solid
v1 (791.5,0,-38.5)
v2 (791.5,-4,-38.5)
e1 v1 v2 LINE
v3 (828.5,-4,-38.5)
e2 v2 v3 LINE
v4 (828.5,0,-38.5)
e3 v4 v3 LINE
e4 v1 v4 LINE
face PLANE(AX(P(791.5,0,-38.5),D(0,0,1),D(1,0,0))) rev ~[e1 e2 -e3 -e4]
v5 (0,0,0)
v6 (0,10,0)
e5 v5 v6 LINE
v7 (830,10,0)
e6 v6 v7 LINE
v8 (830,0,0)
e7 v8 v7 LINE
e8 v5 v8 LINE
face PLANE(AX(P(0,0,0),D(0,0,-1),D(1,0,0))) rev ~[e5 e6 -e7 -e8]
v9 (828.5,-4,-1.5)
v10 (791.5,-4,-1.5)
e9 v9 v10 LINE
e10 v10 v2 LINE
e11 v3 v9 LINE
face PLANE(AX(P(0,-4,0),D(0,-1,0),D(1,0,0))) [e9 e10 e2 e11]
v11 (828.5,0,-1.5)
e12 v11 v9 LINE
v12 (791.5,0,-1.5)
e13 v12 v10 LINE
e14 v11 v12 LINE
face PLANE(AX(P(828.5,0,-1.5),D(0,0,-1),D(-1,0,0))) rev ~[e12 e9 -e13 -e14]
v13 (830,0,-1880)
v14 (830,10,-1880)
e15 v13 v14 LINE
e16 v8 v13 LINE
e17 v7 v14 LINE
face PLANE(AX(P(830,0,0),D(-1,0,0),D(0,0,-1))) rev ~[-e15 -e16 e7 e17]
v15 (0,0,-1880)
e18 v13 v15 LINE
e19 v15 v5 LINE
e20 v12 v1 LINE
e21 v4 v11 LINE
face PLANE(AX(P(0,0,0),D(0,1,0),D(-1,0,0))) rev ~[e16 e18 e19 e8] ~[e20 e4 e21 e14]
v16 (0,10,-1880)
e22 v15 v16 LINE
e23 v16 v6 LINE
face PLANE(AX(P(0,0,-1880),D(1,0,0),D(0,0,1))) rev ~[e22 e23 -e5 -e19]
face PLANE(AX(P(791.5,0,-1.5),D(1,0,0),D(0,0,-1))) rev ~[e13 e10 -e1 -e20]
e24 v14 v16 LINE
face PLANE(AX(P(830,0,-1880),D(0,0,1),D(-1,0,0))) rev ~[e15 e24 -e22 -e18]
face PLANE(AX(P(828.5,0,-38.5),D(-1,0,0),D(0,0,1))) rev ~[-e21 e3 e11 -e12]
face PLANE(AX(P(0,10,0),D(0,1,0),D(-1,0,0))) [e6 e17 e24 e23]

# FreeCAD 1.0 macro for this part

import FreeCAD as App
import Part
import Sketcher

doc = App.newDocument("Part")
params = doc.addObject("Spreadsheet::Sheet", "Params")
for row, (alias, value) in enumerate([
    ("sketch1_width", "830 mm"),
    ("sketch1_height", "1880 mm"),
    ("pad1_length", "10 mm"),
    ("sketch2_width", "37 mm"),
    ("pad2_length", "4 mm"),
], start=1):
    params.set(f"A{row}", alias)
    params.set(f"B{row}", "=" + value)
    params.setAlias(f"B{row}", alias)

body = doc.addObject("PartDesign::Body", "Body")

# Sketch on XZ plane
sketch1 = doc.addObject("Sketcher::SketchObject", "Sketch")
body.addObject(sketch1)
sketch1.AttachmentSupport = (doc.XZ_Plane, [""])
sketch1.MapMode = "FlatFace"
sketch1.addGeometry([
    Part.LineSegment(App.Vector(0, -1880, 0), App.Vector(0, 0, 0)),
    Part.LineSegment(App.Vector(0, 0, 0), App.Vector(830, 0, 0)),
    Part.LineSegment(App.Vector(830, 0, 0), App.Vector(830, -1880, 0)),
    Part.LineSegment(App.Vector(830, -1880, 0), App.Vector(0, -1880, 0)),
], False)
sketch1.addConstraint([
    Sketcher.Constraint("Coincident", 0, 2, 1, 1),
    Sketcher.Constraint("Coincident", 1, 2, 2, 1),
    Sketcher.Constraint("Coincident", 2, 2, 3, 1),
    Sketcher.Constraint("Coincident", 3, 2, 0, 1),
    Sketcher.Constraint("Vertical", 0),
    Sketcher.Constraint("Horizontal", 1),
    Sketcher.Constraint("Vertical", 2),
    Sketcher.Constraint("Horizontal", 3),
    Sketcher.Constraint("Coincident", 0, 2, -1, 1),
    Sketcher.Constraint("DistanceX", 1, 1, 1, 2, 830.0),
    Sketcher.Constraint("DistanceY", 0, 1, 0, 2, 1880.0),
])
sketch1.setExpression("Constraints[9]", "Params.sketch1_width")
sketch1.setExpression("Constraints[10]", "Params.sketch1_height")
pad1 = doc.addObject("PartDesign::Pad", "Pad")
body.addObject(pad1)
pad1.Profile = sketch1
pad1.setExpression("Length", "Params.pad1_length")
pad1.Reversed = True

# Sketch on XZ plane
sketch2 = doc.addObject("Sketcher::SketchObject", "Sketch001")
body.addObject(sketch2)
sketch2.AttachmentSupport = (doc.XZ_Plane, [""])
sketch2.MapMode = "FlatFace"
sketch2.addGeometry([
    Part.LineSegment(App.Vector(828, -38, 0), App.Vector(828, -2, 0)),
    Part.LineSegment(App.Vector(828, -2, 0), App.Vector(792, -2, 0)),
    Part.LineSegment(App.Vector(792, -2, 0), App.Vector(792, -38, 0)),
    Part.LineSegment(App.Vector(792, -38, 0), App.Vector(828, -38, 0)),
], False)
sketch2.addConstraint([
    Sketcher.Constraint("Coincident", 0, 2, 1, 1),
    Sketcher.Constraint("Coincident", 1, 2, 2, 1),
    Sketcher.Constraint("Coincident", 2, 2, 3, 1),
    Sketcher.Constraint("Coincident", 3, 2, 0, 1),
    Sketcher.Constraint("Vertical", 0),
    Sketcher.Constraint("Horizontal", 1),
    Sketcher.Constraint("Vertical", 2),
    Sketcher.Constraint("Horizontal", 3),
    Sketcher.Constraint("Equal", 3, 0),
    Sketcher.Constraint("DistanceX", 1, 2, 1, 1, 37.0),
    Sketcher.Constraint("DistanceY", 0, 2, -1, 1, 1.5),
    Sketcher.Constraint("DistanceX", -1, 1, 0, 2, 828.5),
])
sketch2.setExpression("Constraints[9]", "Params.sketch2_width")
pad2 = doc.addObject("PartDesign::Pad", "Pad001")
body.addObject(pad2)
pad2.Profile = sketch2
pad2.setExpression("Length", "Params.pad2_length")

doc.recompute()
